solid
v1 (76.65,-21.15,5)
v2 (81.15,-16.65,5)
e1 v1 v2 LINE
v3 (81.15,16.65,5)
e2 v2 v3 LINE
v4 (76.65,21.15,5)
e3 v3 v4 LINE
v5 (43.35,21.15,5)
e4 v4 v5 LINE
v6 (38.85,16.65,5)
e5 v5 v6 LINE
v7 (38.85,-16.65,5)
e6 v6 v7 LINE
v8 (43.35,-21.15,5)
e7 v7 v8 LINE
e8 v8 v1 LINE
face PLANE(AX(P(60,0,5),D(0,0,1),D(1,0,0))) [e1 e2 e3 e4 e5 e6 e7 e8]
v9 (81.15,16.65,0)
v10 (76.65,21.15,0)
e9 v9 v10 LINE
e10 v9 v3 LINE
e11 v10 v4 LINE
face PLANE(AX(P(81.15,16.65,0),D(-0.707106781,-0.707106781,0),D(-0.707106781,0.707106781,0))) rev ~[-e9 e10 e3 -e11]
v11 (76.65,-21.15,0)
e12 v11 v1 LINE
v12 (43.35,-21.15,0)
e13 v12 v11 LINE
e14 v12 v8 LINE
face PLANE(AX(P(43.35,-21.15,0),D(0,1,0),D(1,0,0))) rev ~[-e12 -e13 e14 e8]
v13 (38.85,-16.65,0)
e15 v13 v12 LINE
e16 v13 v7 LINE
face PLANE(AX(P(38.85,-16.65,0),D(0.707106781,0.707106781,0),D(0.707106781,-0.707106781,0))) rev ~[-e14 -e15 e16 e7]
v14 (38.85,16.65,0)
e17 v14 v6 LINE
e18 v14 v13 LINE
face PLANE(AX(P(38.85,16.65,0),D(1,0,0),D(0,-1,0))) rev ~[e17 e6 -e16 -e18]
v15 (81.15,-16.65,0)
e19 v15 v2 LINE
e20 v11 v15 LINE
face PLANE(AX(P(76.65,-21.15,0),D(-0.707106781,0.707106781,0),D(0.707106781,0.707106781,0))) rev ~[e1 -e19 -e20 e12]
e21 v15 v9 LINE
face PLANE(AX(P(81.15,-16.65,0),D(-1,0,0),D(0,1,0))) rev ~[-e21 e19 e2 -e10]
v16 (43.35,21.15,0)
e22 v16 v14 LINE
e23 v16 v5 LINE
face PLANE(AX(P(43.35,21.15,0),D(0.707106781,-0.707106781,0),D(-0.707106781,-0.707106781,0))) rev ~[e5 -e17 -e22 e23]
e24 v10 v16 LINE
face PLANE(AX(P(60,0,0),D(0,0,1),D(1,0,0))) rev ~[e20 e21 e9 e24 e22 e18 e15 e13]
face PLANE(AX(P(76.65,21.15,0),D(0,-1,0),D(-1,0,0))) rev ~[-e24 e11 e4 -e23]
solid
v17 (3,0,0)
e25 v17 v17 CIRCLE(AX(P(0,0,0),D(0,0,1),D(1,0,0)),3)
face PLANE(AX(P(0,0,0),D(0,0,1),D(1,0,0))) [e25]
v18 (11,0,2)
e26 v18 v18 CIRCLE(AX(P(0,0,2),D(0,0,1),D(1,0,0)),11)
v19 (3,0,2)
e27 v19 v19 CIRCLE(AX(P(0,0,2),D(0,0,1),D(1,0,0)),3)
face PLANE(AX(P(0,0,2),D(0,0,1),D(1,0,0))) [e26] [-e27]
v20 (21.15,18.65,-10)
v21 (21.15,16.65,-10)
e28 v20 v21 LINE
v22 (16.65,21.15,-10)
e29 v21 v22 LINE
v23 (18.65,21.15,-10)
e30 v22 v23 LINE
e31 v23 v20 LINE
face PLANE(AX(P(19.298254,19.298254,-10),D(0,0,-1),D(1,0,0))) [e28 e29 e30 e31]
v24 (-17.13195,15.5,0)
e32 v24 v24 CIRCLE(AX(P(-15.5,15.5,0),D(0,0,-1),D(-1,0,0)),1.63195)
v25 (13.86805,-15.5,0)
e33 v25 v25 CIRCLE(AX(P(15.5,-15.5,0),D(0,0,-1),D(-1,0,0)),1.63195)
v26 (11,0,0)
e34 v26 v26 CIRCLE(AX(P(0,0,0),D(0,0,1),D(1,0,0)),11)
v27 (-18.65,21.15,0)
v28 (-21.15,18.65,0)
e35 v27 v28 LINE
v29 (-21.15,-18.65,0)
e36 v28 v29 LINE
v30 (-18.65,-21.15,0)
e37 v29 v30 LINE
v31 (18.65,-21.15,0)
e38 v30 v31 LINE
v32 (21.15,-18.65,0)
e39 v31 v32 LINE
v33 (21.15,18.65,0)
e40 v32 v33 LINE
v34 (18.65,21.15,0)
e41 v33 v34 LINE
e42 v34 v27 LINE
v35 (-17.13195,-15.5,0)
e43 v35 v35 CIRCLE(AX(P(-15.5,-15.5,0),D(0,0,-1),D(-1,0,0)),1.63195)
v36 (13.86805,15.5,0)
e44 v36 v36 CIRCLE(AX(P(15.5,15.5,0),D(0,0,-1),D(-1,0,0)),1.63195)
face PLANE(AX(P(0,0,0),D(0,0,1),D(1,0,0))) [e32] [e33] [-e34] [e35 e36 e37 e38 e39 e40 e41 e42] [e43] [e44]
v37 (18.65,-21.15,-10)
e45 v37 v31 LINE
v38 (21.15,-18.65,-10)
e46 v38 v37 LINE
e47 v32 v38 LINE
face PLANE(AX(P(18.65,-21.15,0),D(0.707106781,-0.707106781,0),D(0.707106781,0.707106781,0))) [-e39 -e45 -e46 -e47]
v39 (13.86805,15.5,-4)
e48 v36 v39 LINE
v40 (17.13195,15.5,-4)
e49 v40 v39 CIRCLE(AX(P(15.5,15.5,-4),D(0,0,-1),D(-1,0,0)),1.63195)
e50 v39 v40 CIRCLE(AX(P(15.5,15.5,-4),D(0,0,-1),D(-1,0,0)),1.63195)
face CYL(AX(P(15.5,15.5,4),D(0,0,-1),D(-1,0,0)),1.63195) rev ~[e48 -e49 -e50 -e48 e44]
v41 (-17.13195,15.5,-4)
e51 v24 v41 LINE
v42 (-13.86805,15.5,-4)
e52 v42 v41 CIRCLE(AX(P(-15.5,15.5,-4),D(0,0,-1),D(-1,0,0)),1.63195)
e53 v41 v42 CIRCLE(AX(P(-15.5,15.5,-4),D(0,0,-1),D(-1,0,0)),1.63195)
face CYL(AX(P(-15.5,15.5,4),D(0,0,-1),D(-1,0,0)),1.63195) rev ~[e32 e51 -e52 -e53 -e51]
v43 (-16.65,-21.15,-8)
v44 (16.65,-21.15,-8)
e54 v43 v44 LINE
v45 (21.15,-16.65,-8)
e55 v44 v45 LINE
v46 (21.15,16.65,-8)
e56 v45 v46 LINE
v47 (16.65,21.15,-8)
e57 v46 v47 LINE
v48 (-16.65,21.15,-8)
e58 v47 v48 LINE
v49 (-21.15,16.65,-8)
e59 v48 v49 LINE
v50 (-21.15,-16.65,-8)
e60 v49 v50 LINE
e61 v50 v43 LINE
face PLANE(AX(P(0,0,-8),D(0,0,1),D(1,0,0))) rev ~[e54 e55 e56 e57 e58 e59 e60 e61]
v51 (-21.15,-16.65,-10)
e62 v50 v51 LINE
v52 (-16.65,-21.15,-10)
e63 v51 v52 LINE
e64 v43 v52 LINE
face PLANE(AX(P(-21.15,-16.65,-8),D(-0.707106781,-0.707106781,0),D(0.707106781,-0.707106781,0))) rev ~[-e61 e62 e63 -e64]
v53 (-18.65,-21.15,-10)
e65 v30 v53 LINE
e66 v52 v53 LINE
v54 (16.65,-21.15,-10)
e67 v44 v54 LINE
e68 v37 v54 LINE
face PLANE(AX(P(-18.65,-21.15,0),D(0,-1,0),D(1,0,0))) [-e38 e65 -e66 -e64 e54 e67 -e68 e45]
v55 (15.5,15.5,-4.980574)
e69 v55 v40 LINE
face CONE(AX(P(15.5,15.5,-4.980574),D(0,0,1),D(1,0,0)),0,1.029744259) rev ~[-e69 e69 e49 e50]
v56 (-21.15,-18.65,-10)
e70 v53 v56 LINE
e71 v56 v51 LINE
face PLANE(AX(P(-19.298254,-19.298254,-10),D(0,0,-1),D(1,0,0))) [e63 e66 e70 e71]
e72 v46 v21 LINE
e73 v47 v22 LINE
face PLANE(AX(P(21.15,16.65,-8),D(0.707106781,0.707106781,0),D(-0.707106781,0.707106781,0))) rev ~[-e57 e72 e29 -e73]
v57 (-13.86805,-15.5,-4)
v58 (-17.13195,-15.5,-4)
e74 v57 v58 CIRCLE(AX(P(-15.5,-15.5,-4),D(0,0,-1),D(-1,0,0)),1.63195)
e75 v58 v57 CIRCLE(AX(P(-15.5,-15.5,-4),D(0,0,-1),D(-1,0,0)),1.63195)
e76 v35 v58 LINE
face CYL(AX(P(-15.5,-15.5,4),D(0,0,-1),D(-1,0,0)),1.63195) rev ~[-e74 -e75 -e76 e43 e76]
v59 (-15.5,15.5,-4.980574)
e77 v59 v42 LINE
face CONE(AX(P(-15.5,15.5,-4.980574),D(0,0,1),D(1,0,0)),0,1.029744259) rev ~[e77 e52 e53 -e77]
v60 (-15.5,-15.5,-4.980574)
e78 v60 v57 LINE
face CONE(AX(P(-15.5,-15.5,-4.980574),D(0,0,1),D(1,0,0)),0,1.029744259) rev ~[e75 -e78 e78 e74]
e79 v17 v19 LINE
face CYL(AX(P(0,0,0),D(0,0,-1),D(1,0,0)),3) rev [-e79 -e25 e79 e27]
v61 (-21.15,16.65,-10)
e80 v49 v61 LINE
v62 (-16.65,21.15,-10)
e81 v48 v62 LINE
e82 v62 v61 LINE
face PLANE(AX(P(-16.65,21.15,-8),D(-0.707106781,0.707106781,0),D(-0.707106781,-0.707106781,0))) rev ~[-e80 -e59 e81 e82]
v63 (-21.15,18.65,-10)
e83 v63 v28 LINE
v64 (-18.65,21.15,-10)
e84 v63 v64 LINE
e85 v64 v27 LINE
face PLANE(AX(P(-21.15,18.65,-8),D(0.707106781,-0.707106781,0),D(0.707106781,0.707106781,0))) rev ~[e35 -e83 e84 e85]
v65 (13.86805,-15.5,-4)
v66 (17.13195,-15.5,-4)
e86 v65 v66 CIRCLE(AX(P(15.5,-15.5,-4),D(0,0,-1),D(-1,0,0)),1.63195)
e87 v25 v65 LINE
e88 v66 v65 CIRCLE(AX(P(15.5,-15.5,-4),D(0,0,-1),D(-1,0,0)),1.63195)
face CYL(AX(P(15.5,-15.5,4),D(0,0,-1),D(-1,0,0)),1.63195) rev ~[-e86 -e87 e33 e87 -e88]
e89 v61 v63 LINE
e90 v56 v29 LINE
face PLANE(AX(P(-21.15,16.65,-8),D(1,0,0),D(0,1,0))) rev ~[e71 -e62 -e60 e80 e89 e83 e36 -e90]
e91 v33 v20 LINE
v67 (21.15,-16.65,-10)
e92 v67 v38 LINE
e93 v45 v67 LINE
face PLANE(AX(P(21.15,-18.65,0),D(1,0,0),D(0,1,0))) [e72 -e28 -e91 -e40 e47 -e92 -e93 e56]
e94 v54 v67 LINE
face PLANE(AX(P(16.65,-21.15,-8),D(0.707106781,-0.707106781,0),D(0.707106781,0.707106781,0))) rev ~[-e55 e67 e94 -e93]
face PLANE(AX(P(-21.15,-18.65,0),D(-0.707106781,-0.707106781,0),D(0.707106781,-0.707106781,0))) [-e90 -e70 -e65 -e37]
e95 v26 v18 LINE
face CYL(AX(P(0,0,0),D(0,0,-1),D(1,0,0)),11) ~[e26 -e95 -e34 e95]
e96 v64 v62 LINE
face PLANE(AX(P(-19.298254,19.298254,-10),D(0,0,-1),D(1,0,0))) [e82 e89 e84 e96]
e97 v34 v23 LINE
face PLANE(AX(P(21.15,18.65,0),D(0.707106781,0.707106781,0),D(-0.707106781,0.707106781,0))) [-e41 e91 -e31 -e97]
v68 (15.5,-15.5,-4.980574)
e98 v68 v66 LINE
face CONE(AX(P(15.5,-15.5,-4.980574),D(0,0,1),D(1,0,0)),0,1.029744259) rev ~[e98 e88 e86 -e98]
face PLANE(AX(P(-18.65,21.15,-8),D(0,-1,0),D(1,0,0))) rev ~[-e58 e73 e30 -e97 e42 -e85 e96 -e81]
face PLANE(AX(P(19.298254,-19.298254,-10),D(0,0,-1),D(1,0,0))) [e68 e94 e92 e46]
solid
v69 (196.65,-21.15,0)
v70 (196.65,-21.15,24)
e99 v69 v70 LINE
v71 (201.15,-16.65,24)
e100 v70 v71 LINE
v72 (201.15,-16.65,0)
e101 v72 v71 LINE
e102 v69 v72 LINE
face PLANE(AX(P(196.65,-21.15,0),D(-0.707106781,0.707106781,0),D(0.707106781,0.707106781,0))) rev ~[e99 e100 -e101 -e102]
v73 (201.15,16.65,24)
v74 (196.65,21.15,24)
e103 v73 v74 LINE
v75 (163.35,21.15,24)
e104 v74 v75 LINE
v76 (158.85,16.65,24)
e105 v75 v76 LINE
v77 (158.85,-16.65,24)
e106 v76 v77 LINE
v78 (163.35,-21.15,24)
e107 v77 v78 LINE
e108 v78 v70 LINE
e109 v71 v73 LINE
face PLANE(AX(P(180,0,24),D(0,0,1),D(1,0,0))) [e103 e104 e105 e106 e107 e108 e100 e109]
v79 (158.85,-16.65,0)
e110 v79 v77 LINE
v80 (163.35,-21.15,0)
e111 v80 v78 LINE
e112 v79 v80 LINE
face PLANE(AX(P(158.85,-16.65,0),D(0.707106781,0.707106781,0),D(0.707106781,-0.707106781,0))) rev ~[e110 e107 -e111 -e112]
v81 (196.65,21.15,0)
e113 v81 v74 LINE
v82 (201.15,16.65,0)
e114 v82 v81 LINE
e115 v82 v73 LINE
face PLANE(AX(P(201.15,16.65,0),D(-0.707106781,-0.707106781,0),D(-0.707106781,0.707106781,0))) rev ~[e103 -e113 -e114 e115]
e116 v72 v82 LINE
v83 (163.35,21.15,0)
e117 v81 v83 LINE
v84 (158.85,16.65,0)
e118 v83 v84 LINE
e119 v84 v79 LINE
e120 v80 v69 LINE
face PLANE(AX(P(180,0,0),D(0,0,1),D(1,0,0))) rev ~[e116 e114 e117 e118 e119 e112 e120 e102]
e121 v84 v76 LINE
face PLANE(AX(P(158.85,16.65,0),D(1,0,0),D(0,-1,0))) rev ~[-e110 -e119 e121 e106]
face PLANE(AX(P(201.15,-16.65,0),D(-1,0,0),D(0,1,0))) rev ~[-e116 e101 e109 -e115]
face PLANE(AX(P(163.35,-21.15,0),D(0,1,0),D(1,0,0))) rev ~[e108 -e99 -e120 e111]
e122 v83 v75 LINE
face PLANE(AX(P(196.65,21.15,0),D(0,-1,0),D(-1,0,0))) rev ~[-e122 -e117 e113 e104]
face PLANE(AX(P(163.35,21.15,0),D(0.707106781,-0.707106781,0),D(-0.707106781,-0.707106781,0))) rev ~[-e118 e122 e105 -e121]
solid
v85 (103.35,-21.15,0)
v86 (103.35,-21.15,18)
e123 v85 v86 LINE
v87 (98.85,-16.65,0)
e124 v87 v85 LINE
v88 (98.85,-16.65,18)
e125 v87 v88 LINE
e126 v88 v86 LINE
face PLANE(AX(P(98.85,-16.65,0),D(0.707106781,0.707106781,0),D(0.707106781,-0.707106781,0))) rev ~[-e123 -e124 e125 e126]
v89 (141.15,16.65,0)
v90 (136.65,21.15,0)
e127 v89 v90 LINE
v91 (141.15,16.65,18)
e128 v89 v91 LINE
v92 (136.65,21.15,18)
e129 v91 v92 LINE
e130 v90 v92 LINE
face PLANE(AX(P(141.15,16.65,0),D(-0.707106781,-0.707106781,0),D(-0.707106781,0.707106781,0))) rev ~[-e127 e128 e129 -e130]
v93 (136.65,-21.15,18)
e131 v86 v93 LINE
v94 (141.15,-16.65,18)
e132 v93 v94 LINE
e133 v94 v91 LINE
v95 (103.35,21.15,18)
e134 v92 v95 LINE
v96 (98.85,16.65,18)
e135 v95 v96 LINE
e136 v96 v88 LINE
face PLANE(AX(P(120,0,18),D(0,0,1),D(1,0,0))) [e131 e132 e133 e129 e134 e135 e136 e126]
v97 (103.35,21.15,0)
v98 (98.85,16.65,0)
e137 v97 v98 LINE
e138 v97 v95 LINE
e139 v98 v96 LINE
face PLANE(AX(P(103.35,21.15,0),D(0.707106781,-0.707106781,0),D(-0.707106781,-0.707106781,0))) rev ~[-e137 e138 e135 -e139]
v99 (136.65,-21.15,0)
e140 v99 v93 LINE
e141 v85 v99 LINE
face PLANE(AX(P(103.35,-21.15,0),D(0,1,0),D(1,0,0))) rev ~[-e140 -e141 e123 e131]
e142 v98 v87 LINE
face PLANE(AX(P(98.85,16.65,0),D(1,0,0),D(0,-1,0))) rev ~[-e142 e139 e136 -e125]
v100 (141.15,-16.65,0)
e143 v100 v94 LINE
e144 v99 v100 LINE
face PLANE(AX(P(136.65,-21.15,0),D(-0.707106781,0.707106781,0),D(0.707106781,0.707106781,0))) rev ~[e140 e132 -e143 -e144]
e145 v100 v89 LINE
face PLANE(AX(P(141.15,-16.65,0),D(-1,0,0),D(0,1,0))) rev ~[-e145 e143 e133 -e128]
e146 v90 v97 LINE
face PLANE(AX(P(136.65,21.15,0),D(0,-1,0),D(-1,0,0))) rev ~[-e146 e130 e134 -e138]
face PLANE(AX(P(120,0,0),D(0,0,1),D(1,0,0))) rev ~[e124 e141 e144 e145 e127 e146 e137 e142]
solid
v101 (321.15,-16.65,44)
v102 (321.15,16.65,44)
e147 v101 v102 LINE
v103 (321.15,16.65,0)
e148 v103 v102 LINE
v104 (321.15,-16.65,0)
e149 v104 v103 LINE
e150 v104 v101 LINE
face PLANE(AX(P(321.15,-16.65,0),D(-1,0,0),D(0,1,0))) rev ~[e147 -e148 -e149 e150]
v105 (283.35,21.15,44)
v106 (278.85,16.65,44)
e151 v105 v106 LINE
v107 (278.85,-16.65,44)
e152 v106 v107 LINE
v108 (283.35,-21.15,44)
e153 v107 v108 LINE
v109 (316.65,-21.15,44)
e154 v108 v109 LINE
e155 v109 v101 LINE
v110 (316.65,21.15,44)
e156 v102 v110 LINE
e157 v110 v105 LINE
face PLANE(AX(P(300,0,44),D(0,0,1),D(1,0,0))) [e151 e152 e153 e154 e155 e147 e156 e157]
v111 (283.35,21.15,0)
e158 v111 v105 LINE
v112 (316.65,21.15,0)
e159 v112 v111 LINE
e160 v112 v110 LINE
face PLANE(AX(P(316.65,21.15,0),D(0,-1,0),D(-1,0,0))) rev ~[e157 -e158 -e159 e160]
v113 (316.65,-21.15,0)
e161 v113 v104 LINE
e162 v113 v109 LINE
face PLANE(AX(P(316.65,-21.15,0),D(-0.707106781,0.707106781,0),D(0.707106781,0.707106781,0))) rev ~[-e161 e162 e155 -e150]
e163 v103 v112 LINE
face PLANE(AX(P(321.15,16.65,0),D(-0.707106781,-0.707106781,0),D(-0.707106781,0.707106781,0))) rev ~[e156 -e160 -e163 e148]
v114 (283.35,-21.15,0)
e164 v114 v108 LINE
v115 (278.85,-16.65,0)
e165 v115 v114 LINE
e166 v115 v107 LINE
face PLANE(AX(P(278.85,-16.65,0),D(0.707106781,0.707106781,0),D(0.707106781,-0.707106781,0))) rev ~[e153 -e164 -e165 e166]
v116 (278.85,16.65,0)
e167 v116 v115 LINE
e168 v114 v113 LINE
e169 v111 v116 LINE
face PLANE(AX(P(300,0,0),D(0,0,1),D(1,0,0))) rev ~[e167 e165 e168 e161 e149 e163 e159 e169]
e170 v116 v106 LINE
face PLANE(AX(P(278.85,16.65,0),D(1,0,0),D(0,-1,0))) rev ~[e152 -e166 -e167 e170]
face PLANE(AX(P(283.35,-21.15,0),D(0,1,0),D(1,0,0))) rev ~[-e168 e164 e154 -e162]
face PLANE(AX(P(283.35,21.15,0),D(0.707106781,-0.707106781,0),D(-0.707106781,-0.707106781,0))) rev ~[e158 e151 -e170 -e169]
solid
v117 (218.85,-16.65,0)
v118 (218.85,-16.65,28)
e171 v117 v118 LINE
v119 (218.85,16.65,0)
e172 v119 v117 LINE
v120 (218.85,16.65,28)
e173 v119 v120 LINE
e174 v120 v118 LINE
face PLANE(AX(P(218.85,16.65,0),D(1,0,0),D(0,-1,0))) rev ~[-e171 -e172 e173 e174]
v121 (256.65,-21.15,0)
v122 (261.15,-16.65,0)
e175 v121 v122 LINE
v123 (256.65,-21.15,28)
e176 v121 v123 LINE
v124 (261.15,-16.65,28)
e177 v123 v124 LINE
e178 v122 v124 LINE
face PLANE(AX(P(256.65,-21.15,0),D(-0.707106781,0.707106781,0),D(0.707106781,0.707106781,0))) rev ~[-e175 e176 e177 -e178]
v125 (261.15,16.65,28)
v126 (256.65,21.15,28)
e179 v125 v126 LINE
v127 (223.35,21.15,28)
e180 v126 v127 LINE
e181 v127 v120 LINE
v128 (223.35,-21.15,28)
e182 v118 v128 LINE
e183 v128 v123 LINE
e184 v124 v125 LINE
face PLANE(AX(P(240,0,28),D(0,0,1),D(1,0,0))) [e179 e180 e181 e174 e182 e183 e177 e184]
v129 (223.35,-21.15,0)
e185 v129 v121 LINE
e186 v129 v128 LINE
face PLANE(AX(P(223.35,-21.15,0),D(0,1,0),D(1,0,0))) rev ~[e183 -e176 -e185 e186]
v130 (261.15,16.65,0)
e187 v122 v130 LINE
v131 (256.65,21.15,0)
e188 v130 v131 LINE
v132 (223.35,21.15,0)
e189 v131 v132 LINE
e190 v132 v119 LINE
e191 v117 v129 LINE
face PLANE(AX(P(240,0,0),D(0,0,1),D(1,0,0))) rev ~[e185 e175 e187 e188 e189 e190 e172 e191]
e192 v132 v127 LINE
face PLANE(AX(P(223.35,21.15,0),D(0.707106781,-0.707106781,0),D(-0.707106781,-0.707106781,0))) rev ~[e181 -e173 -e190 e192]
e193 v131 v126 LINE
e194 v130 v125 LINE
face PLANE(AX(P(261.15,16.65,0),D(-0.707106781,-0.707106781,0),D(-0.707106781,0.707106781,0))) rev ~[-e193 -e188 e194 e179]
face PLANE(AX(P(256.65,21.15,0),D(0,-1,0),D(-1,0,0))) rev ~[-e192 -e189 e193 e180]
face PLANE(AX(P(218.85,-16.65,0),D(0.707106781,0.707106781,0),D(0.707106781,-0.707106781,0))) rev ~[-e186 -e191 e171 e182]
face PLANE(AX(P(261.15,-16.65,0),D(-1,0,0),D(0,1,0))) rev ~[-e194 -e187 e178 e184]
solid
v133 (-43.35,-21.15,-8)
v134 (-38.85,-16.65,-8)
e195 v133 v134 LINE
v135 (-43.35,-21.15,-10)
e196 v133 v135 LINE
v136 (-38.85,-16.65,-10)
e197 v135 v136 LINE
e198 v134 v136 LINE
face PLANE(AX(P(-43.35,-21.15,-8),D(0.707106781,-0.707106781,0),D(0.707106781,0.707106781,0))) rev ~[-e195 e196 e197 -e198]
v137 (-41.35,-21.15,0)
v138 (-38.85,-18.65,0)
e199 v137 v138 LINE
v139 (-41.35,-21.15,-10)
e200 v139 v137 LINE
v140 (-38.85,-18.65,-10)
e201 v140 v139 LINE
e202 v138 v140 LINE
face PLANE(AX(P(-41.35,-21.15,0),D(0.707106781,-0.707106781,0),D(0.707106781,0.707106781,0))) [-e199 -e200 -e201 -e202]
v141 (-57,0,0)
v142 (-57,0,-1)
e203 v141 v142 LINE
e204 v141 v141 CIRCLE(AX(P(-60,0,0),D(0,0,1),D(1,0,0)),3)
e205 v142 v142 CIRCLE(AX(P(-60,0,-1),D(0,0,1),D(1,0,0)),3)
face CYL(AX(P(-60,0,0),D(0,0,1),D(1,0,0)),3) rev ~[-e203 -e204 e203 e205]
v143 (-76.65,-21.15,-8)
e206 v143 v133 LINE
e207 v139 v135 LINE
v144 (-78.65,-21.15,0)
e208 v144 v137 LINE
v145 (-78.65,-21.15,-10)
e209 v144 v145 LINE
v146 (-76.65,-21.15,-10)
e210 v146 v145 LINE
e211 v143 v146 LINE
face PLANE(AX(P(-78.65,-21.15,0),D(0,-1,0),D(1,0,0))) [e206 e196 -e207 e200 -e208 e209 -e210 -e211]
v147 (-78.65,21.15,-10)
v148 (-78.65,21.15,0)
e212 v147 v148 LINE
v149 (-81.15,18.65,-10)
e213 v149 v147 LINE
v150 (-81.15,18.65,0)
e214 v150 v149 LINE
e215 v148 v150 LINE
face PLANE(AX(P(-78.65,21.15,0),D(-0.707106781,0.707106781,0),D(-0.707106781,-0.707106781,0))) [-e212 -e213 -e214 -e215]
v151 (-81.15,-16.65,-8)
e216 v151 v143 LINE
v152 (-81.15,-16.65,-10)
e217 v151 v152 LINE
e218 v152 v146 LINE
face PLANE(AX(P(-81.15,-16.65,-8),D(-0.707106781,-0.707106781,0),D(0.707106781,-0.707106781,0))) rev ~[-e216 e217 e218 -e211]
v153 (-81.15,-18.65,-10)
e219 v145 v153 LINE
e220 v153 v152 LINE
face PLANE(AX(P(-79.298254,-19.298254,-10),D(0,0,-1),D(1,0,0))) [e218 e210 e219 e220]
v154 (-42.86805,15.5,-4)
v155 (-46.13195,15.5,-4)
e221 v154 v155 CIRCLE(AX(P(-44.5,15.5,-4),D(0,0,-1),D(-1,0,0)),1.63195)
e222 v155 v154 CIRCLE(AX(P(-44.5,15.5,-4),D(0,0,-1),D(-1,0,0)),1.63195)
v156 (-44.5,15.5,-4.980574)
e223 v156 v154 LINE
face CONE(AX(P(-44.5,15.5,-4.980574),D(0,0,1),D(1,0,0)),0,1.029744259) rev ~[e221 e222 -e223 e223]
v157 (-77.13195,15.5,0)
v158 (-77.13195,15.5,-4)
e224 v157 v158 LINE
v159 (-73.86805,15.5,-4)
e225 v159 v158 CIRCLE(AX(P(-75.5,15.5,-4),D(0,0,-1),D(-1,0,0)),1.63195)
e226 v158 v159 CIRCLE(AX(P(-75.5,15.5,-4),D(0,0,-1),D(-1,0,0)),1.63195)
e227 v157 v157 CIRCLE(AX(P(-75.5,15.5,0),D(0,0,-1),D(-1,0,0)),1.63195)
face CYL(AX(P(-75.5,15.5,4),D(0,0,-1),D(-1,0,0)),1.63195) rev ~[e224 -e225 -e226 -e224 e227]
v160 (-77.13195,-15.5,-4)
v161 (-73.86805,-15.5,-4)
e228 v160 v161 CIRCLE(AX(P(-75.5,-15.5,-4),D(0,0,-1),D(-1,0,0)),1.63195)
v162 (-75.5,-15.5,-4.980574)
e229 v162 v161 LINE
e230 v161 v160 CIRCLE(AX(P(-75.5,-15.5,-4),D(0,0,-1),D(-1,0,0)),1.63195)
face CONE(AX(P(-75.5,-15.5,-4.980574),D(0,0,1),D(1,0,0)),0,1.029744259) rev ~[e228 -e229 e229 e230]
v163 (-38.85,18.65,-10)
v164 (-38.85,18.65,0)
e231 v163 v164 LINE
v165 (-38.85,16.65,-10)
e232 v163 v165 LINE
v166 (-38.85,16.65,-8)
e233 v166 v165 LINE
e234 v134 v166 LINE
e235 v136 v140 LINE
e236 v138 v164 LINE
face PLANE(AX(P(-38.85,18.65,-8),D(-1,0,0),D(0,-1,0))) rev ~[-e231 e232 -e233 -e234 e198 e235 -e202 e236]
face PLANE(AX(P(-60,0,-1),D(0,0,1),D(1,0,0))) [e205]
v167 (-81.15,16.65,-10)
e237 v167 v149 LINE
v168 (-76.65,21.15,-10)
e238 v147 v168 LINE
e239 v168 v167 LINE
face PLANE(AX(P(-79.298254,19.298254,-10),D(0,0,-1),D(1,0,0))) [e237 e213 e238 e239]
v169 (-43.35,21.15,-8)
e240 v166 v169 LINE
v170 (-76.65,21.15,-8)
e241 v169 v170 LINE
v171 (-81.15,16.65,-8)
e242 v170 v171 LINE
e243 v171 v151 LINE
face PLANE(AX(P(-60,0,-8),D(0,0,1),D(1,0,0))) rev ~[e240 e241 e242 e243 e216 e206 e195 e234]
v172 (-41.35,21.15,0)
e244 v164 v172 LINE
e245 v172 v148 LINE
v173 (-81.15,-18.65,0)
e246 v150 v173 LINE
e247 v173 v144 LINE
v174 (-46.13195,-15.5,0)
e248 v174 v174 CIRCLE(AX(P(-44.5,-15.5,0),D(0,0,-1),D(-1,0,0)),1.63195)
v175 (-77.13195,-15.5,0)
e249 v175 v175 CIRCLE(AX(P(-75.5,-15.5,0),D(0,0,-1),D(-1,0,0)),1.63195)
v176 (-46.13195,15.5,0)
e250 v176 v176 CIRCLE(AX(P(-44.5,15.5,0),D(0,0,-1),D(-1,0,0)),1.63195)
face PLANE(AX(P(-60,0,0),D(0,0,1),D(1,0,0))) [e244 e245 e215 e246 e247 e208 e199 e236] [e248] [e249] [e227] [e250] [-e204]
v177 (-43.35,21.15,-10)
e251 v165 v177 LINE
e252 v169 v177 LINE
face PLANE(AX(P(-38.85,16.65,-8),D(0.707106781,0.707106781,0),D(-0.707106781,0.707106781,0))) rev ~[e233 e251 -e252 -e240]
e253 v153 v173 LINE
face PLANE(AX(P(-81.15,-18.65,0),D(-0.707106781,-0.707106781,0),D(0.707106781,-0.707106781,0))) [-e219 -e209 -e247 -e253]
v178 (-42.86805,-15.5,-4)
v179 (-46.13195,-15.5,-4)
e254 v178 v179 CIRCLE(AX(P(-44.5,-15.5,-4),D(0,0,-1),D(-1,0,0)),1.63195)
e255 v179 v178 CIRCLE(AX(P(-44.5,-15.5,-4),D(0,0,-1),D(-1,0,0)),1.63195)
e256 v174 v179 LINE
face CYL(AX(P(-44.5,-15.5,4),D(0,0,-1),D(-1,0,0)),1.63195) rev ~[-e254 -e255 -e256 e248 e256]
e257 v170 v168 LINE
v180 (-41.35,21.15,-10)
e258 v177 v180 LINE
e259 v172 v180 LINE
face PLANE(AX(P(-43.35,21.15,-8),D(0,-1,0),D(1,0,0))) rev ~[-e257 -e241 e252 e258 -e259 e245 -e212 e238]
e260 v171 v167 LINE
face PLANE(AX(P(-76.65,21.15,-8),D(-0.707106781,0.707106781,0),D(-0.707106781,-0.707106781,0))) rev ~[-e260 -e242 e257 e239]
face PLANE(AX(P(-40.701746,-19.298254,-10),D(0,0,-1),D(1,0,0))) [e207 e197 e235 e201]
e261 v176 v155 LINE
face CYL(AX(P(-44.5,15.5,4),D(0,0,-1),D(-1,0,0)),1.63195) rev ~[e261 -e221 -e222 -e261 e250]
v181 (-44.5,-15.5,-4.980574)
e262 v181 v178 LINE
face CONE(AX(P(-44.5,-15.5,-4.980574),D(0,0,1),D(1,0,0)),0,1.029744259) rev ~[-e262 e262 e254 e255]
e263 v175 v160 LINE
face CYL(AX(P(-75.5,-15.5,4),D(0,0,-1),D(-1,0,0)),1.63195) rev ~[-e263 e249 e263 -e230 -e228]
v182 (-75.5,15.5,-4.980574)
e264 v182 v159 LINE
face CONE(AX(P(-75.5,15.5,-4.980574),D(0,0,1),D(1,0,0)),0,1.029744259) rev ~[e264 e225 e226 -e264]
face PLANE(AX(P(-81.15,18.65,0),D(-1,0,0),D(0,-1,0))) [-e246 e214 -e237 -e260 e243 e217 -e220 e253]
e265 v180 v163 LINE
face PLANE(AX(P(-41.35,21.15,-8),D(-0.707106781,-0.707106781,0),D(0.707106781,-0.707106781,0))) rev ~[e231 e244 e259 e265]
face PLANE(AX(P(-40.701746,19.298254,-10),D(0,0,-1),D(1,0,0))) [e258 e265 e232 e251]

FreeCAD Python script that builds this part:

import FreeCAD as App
import Part
import Sketcher
Q = App.Units.Quantity

doc = App.newDocument("Part")
body = doc.addObject("PartDesign::Body", "Body")

sketch1 = doc.addObject("Sketcher::SketchObject", "Sketch")
body.addObject(sketch1)
sketch1.AttachmentSupport = (doc.XY_Plane, [""])
sketch1.MapMode = "FlatFace"
sketch1.addGeometry([
    Part.LineSegment(App.Vector(-38.9, 18.6, 0), App.Vector(-41.4, 21.1, 0)),
    Part.LineSegment(App.Vector(-41.4, 21.1, 0), App.Vector(-78.7, 21.1, 0)),
    Part.LineSegment(App.Vector(-78.7, 21.1, 0), App.Vector(-81.2, 18.6, 0)),
    Part.LineSegment(App.Vector(-81.2, 18.6, 0), App.Vector(-81.2, -18.6, 0)),
    Part.LineSegment(App.Vector(-81.2, -18.6, 0), App.Vector(-78.7, -21.1, 0)),
    Part.LineSegment(App.Vector(-78.7, -21.1, 0), App.Vector(-41.4, -21.1, 0)),
    Part.LineSegment(App.Vector(-41.4, -21.1, 0), App.Vector(-38.9, -18.6, 0)),
    Part.LineSegment(App.Vector(-38.9, -18.6, 0), App.Vector(-38.9, 18.6, 0)),
], False)
sketch1.addConstraint([
    Sketcher.Constraint("Coincident", 0, 2, 1, 1),
    Sketcher.Constraint("Coincident", 1, 2, 2, 1),
    Sketcher.Constraint("Coincident", 2, 2, 3, 1),
    Sketcher.Constraint("Coincident", 3, 2, 4, 1),
    Sketcher.Constraint("Coincident", 4, 2, 5, 1),
    Sketcher.Constraint("Coincident", 5, 2, 6, 1),
    Sketcher.Constraint("Coincident", 6, 2, 7, 1),
    Sketcher.Constraint("Coincident", 7, 2, 0, 1),
    Sketcher.Constraint("Horizontal", 1),
    Sketcher.Constraint("Vertical", 3),
    Sketcher.Constraint("Horizontal", 5),
    Sketcher.Constraint("Vertical", 7),
    Sketcher.Constraint("Symmetric", 1, 2, 4, 2, -1),
    Sketcher.Constraint("Perpendicular", 0, 2),
    Sketcher.Constraint("Perpendicular", 2, 4),
    Sketcher.Constraint("Perpendicular", 4, 6),
    Sketcher.Constraint("Horizontal", 3, 2, 6, 2),
    Sketcher.Constraint("Horizontal", 2, 2, 7, 2),
    Sketcher.Constraint("Vertical", 0, 2, 5, 2),
    Sketcher.Constraint("Equal", 5, 3),
    Sketcher.Constraint("DistanceX", 1, 2, 1, 1, Q("37.3 mm")),
    Sketcher.Constraint("DistanceX", 2, 2, 1, 2, Q("2.5 mm")),
    Sketcher.Constraint("DistanceX", 0, 2, -1, 1, Q("41.35 mm")),
])
pad1 = doc.addObject("PartDesign::Pad", "Pad")
body.addObject(pad1)
pad1.Profile = sketch1
pad1.Length = 8
pad1.Reversed = True

sketch2 = doc.addObject("Sketcher::SketchObject", "Sketch001")
body.addObject(sketch2)
sketch2.AttachmentSupport = (doc.XY_Plane, [""])
sketch2.MapMode = "FlatFace"
sketch2.addGeometry(Part.Circle(App.Vector(-60, 0, 0), App.Vector(0, 0, 1), 3), False)
sketch2.addConstraint([
    Sketcher.Constraint("PointOnObject", 0, 3, -1),
    Sketcher.Constraint("Diameter", 0, Q("6 mm")),
    Sketcher.Constraint("DistanceX", 0, 3, -1, 1, Q("60 mm")),
])
pocket1 = doc.addObject("PartDesign::Pocket", "Pocket")
body.addObject(pocket1)
pocket1.Profile = sketch2
pocket1.Length = 1

sketch3 = doc.addObject("Sketcher::SketchObject", "Sketch002")
body.addObject(sketch3)
sketch3.AttachmentSupport = (doc.XY_Plane, [""])
sketch3.MapMode = "FlatFace"
sketch3.AttachmentOffset = App.Placement(App.Vector(0, 0, -8), App.Rotation())
sketch3.addGeometry([
    Part.LineSegment(App.Vector(-38.9, 16.6, 0), App.Vector(-43.4, 21.1, 0)),
    Part.LineSegment(App.Vector(-43.4, 21.1, 0), App.Vector(-41.4, 21.1, 0)),
    Part.LineSegment(App.Vector(-41.4, 21.1, 0), App.Vector(-38.9, 18.6, 0)),
    Part.LineSegment(App.Vector(-38.9, 18.6, 0), App.Vector(-38.9, 16.6, 0)),
    Part.LineSegment(App.Vector(-78.7, 21.1, 0), App.Vector(-76.7, 21.1, 0)),
    Part.LineSegment(App.Vector(-76.7, 21.1, 0), App.Vector(-81.2, 16.6, 0)),
    Part.LineSegment(App.Vector(-81.2, 16.6, 0), App.Vector(-81.2, 18.6, 0)),
    Part.LineSegment(App.Vector(-81.2, 18.6, 0), App.Vector(-78.7, 21.1, 0)),
    Part.LineSegment(App.Vector(-81.2, -16.6, 0), App.Vector(-76.7, -21.1, 0)),
    Part.LineSegment(App.Vector(-76.7, -21.1, 0), App.Vector(-78.7, -21.1, 0)),
    Part.LineSegment(App.Vector(-78.7, -21.1, 0), App.Vector(-81.2, -18.6, 0)),
    Part.LineSegment(App.Vector(-81.2, -18.6, 0), App.Vector(-81.2, -16.6, 0)),
    Part.LineSegment(App.Vector(-38.9, -16.6, 0), App.Vector(-38.9, -18.6, 0)),
    Part.LineSegment(App.Vector(-38.9, -18.6, 0), App.Vector(-41.4, -21.1, 0)),
    Part.LineSegment(App.Vector(-41.4, -21.1, 0), App.Vector(-43.4, -21.1, 0)),
    Part.LineSegment(App.Vector(-43.4, -21.1, 0), App.Vector(-38.9, -16.6, 0)),
], False)
sketch3.addConstraint([
    Sketcher.Constraint("Coincident", 0, 2, 1, 1),
    Sketcher.Constraint("Coincident", 1, 2, 2, 1),
    Sketcher.Constraint("Coincident", 2, 2, 3, 1),
    Sketcher.Constraint("Coincident", 3, 2, 0, 1),
    Sketcher.Constraint("Coincident", 4, 2, 5, 1),
    Sketcher.Constraint("Coincident", 5, 2, 6, 1),
    Sketcher.Constraint("Coincident", 6, 2, 7, 1),
    Sketcher.Constraint("Coincident", 7, 2, 4, 1),
    Sketcher.Constraint("Coincident", 8, 2, 9, 1),
    Sketcher.Constraint("Coincident", 9, 2, 10, 1),
    Sketcher.Constraint("Coincident", 10, 2, 11, 1),
    Sketcher.Constraint("Coincident", 11, 2, 8, 1),
    Sketcher.Constraint("Coincident", 12, 2, 13, 1),
    Sketcher.Constraint("Coincident", 13, 2, 14, 1),
    Sketcher.Constraint("Coincident", 14, 2, 15, 1),
    Sketcher.Constraint("Coincident", 15, 2, 12, 1),
    Sketcher.Constraint("Horizontal", 1),
    Sketcher.Constraint("Vertical", 3),
    Sketcher.Constraint("Horizontal", 4),
    Sketcher.Constraint("Vertical", 6),
    Sketcher.Constraint("Horizontal", 9),
    Sketcher.Constraint("Vertical", 11),
    Sketcher.Constraint("Vertical", 12),
    Sketcher.Constraint("Horizontal", 14),
    Sketcher.Constraint("Symmetric", 4, 2, 8, 2, -1),
    Sketcher.Constraint("Symmetric", 6, 2, 10, 2, -1),
    Sketcher.Constraint("Symmetric", 2, 2, 12, 2, -1),
    Sketcher.Constraint("Symmetric", 1, 2, 13, 2, -1),
    Sketcher.Constraint("Parallel", 0, 2),
    Sketcher.Constraint("Perpendicular", 2, 5),
    Sketcher.Constraint("Parallel", 5, 7),
    Sketcher.Constraint("Perpendicular", 7, 8),
    Sketcher.Constraint("Parallel", 8, 10),
    Sketcher.Constraint("Perpendicular", 10, 13),
    Sketcher.Constraint("Parallel", 13, 15),
    Sketcher.Constraint("Horizontal", 1, 2, 4, 2),
    Sketcher.Constraint("Horizontal", 3, 2, 5, 2),
    Sketcher.Constraint("Horizontal", 2, 2, 6, 2),
    Sketcher.Constraint("Horizontal", 11, 2, 15, 2),
    Sketcher.Constraint("DistanceX", 1, 1, 1, 2, Q("2 mm")),
    Sketcher.Constraint("DistanceX", 1, 2, 2, 2, Q("2.5 mm")),
    Sketcher.Constraint("DistanceX", 4, 2, 0, 2, Q("33.3 mm")),
    Sketcher.Constraint("DistanceY", 8, 2, 5, 2, Q("37.8 mm")),
    Sketcher.Constraint("DistanceX", 0, 2, -1, 1, Q("43.35 mm")),
])
pad2 = doc.addObject("PartDesign::Pad", "Pad001")
body.addObject(pad2)
pad2.Profile = sketch3
pad2.Length = 2
pad2.Reversed = True

sketch4 = doc.addObject("Sketcher::SketchObject", "Sketch003")
body.addObject(sketch4)
sketch4.AttachmentSupport = (doc.XY_Plane, [""])
sketch4.MapMode = "FlatFace"
sketch4.addGeometry([
    Part.Circle(App.Vector(-15.5, -15.5, 0), App.Vector(0, 0, 1), 1.6),
    Part.Circle(App.Vector(15.5, -15.5, 0), App.Vector(0, 0, 1), 1.6),
    Part.Circle(App.Vector(15.5, 15.5, 0), App.Vector(0, 0, 1), 1.6),
    Part.Circle(App.Vector(-15.5, 15.5, 0), App.Vector(0, 0, 1), 1.6),
    Part.Circle(App.Vector(-44.5, -15.5, 0), App.Vector(0, 0, 1), 1.6),
    Part.Circle(App.Vector(-44.5, 15.5, 0), App.Vector(0, 0, 1), 1.6),
    Part.Circle(App.Vector(-75.5, 15.5, 0), App.Vector(0, 0, 1), 1.6),
    Part.Circle(App.Vector(-75.5, -15.5, 0), App.Vector(0, 0, 1), 1.6),
], False)
sketch4.addConstraint([
    Sketcher.Constraint("Equal", 0, 1),
    Sketcher.Constraint("Equal", 1, 2),
    Sketcher.Constraint("Equal", 2, 3),
    Sketcher.Constraint("Equal", 3, 4),
    Sketcher.Constraint("Equal", 4, 5),
    Sketcher.Constraint("Equal", 5, 6),
    Sketcher.Constraint("Equal", 6, 7),
    Sketcher.Constraint("Symmetric", 0, 3, 2, 3, -1, 1),
    Sketcher.Constraint("Symmetric", 1, 3, 3, 3, -1, 1),
    Sketcher.Constraint("Symmetric", 0, 3, 1, 3, -2),
    Sketcher.Constraint("Symmetric", 4, 3, 5, 3, -1),
    Sketcher.Constraint("Symmetric", 6, 3, 7, 3, -1),
    Sketcher.Constraint("Horizontal", 1, 3, 4, 3),
    Sketcher.Constraint("Horizontal", 5, 3, 6, 3),
    Sketcher.Constraint("DistanceX", 0, 3, 1, 3, Q("31 mm")),
    Sketcher.Constraint("DistanceY", 1, 3, 2, 3, Q("31 mm")),
    Sketcher.Constraint("DistanceX", 4, 3, 0, 3, Q("29 mm")),
    Sketcher.Constraint("DistanceX", 6, 3, 5, 3, Q("31 mm")),
    Sketcher.Constraint("Diameter", 0, Q("3.2639 mm")),
])
doc.recompute()
hole = doc.addObject("PartDesign::Hole", "Hole")
body.addObject(hole)
hole.Profile = sketch4
hole.ThreadType = "None"
hole.Diameter = 3.2639
hole.DepthType = "Dimension"
hole.Depth = 4
hole.DrillPoint = "Angled"
hole.DrillPointAngle = 118
body2 = doc.addObject("PartDesign::Body", "Body001")

sketch5 = doc.addObject("Sketcher::SketchObject", "Sketch004")
body2.addObject(sketch5)
sketch5.AttachmentSupport = (doc.getObject("XY_Plane001"), [""])
sketch5.MapMode = "FlatFace"
sketch5.addGeometry([
    Part.LineSegment(App.Vector(21.1, 18.6, 0), App.Vector(18.6, 21.1, 0)),
    Part.LineSegment(App.Vector(18.6, 21.1, 0), App.Vector(-18.6, 21.1, 0)),
    Part.LineSegment(App.Vector(-18.6, 21.1, 0), App.Vector(-21.1, 18.6, 0)),
    Part.LineSegment(App.Vector(-21.1, 18.6, 0), App.Vector(-21.1, -18.6, 0)),
    Part.LineSegment(App.Vector(-21.1, -18.6, 0), App.Vector(-18.6, -21.1, 0)),
    Part.LineSegment(App.Vector(-18.6, -21.1, 0), App.Vector(18.6, -21.1, 0)),
    Part.LineSegment(App.Vector(18.6, -21.1, 0), App.Vector(21.1, -18.6, 0)),
    Part.LineSegment(App.Vector(21.1, -18.6, 0), App.Vector(21.1, 18.6, 0)),
], False)
sketch5.addConstraint([
    Sketcher.Constraint("Coincident", 0, 2, 1, 1),
    Sketcher.Constraint("Coincident", 1, 2, 2, 1),
    Sketcher.Constraint("Coincident", 2, 2, 3, 1),
    Sketcher.Constraint("Coincident", 3, 2, 4, 1),
    Sketcher.Constraint("Coincident", 4, 2, 5, 1),
    Sketcher.Constraint("Coincident", 5, 2, 6, 1),
    Sketcher.Constraint("Coincident", 6, 2, 7, 1),
    Sketcher.Constraint("Coincident", 7, 2, 0, 1),
    Sketcher.Constraint("Horizontal", 1),
    Sketcher.Constraint("Vertical", 3),
    Sketcher.Constraint("Horizontal", 5),
    Sketcher.Constraint("Vertical", 7),
    Sketcher.Constraint("Symmetric", 0, 2, 4, 2, -1, 1),
    Sketcher.Constraint("Symmetric", 2, 2, 6, 2, -1, 1),
    Sketcher.Constraint("Perpendicular", 0, 2),
    Sketcher.Constraint("Perpendicular", 2, 4),
    Sketcher.Constraint("Perpendicular", 4, 6),
    Sketcher.Constraint("Horizontal", 3, 2, 6, 2),
    Sketcher.Constraint("Vertical", 1, 2, 4, 2),
    Sketcher.Constraint("Equal", 5, 3),
    Sketcher.Constraint("DistanceX", 1, 2, 1, 1, Q("37.3 mm")),
    Sketcher.Constraint("DistanceX", 2, 2, 1, 2, Q("2.5 mm")),
])
pad3 = doc.addObject("PartDesign::Pad", "Pad002")
body2.addObject(pad3)
pad3.Profile = sketch5
pad3.Length = 8
pad3.Reversed = True

sketch6 = doc.addObject("Sketcher::SketchObject", "Sketch005")
body2.addObject(sketch6)
sketch6.AttachmentSupport = (doc.getObject("XY_Plane001"), [""])
sketch6.MapMode = "FlatFace"
sketch6.addGeometry([
    Part.Circle(App.Vector(0, 0, 0), App.Vector(0, 0, 1), 11),
    Part.Circle(App.Vector(0, 0, 0), App.Vector(0, 0, 1), 3),
], False)
sketch6.addConstraint([
    Sketcher.Constraint("Coincident", 0, 3, -1, 1),
    Sketcher.Constraint("Coincident", 1, 3, -1, 1),
    Sketcher.Constraint("Diameter", 0, Q("22 mm")),
    Sketcher.Constraint("Diameter", 1, Q("6 mm")),
])
pad4 = doc.addObject("PartDesign::Pad", "Pad003")
body2.addObject(pad4)
pad4.Profile = sketch6
pad4.Length = 2

sketch7 = doc.addObject("Sketcher::SketchObject", "Sketch006")
body2.addObject(sketch7)
sketch7.AttachmentSupport = (doc.getObject("XY_Plane001"), [""])
sketch7.MapMode = "FlatFace"
sketch7.AttachmentOffset = App.Placement(App.Vector(0, 0, -8), App.Rotation())
sketch7.addGeometry([
    Part.LineSegment(App.Vector(-18.6, 21.1, 0), App.Vector(-16.6, 21.1, 0)),
    Part.LineSegment(App.Vector(-16.6, 21.1, 0), App.Vector(-21.1, 16.6, 0)),
    Part.LineSegment(App.Vector(-21.1, 16.6, 0), App.Vector(-21.1, 18.6, 0)),
    Part.LineSegment(App.Vector(-21.1, 18.6, 0), App.Vector(-18.6, 21.1, 0)),
    Part.LineSegment(App.Vector(21.1, 16.6, 0), App.Vector(16.6, 21.1, 0)),
    Part.LineSegment(App.Vector(16.6, 21.1, 0), App.Vector(18.6, 21.1, 0)),
    Part.LineSegment(App.Vector(18.6, 21.1, 0), App.Vector(21.1, 18.6, 0)),
    Part.LineSegment(App.Vector(21.1, 18.6, 0), App.Vector(21.1, 16.6, 0)),
    Part.LineSegment(App.Vector(16.6, -21.1, 0), App.Vector(21.1, -16.6, 0)),
    Part.LineSegment(App.Vector(21.1, -16.6, 0), App.Vector(21.1, -18.6, 0)),
    Part.LineSegment(App.Vector(21.1, -18.6, 0), App.Vector(18.6, -21.1, 0)),
    Part.LineSegment(App.Vector(18.6, -21.1, 0), App.Vector(16.6, -21.1, 0)),
    Part.LineSegment(App.Vector(-21.1, -18.6, 0), App.Vector(-21.1, -16.6, 0)),
    Part.LineSegment(App.Vector(-21.1, -16.6, 0), App.Vector(-16.6, -21.1, 0)),
    Part.LineSegment(App.Vector(-16.6, -21.1, 0), App.Vector(-18.6, -21.1, 0)),
    Part.LineSegment(App.Vector(-18.6, -21.1, 0), App.Vector(-21.1, -18.6, 0)),
], False)
sketch7.addConstraint([
    Sketcher.Constraint("Coincident", 0, 2, 1, 1),
    Sketcher.Constraint("Coincident", 1, 2, 2, 1),
    Sketcher.Constraint("Coincident", 2, 2, 3, 1),
    Sketcher.Constraint("Coincident", 3, 2, 0, 1),
    Sketcher.Constraint("Coincident", 4, 2, 5, 1),
    Sketcher.Constraint("Coincident", 5, 2, 6, 1),
    Sketcher.Constraint("Coincident", 6, 2, 7, 1),
    Sketcher.Constraint("Coincident", 7, 2, 4, 1),
    Sketcher.Constraint("Coincident", 8, 2, 9, 1),
    Sketcher.Constraint("Coincident", 9, 2, 10, 1),
    Sketcher.Constraint("Coincident", 10, 2, 11, 1),
    Sketcher.Constraint("Coincident", 11, 2, 8, 1),
    Sketcher.Constraint("Coincident", 12, 2, 13, 1),
    Sketcher.Constraint("Coincident", 13, 2, 14, 1),
    Sketcher.Constraint("Coincident", 14, 2, 15, 1),
    Sketcher.Constraint("Coincident", 15, 2, 12, 1),
    Sketcher.Constraint("Horizontal", 0),
    Sketcher.Constraint("Vertical", 2),
    Sketcher.Constraint("Horizontal", 5),
    Sketcher.Constraint("Vertical", 7),
    Sketcher.Constraint("Vertical", 9),
    Sketcher.Constraint("Horizontal", 11),
    Sketcher.Constraint("Vertical", 12),
    Sketcher.Constraint("Horizontal", 14),
    Sketcher.Constraint("Symmetric", 1, 2, 8, 2, -1, 1),
    Sketcher.Constraint("Symmetric", 3, 2, 10, 2, -1, 1),
    Sketcher.Constraint("Symmetric", 7, 2, 12, 2, -1, 1),
    Sketcher.Constraint("Symmetric", 4, 2, 13, 2, -1, 1),
    Sketcher.Constraint("Symmetric", 0, 2, 4, 2, -2),
    Sketcher.Constraint("Symmetric", 2, 2, 6, 2, -2),
    Sketcher.Constraint("Parallel", 1, 3),
    Sketcher.Constraint("Perpendicular", 3, 4),
    Sketcher.Constraint("Parallel", 4, 6),
    Sketcher.Constraint("Perpendicular", 6, 8),
    Sketcher.Constraint("Parallel", 8, 10),
    Sketcher.Constraint("Parallel", 13, 15),
    Sketcher.Constraint("Horizontal", 1, 2, 7, 2),
    Sketcher.Constraint("Horizontal", 9, 2, 15, 2),
    Sketcher.Constraint("DistanceX", 0, 1, 0, 2, Q("2 mm")),
    Sketcher.Constraint("DistanceX", 1, 2, 0, 2, Q("4.5 mm")),
    Sketcher.Constraint("DistanceX", 0, 2, 4, 2, Q("33.3 mm")),
    Sketcher.Constraint("DistanceY", 8, 2, 7, 2, Q("33.3 mm")),
])
pad5 = doc.addObject("PartDesign::Pad", "Pad004")
body2.addObject(pad5)
pad5.Profile = sketch7
pad5.Length = 2
pad5.Reversed = True

sketch8 = doc.addObject("Sketcher::SketchObject", "Sketch007")
body2.addObject(sketch8)
sketch8.AttachmentSupport = (doc.getObject("XY_Plane001"), [""])
sketch8.MapMode = "FlatFace"
sketch8.addGeometry([
    Part.Circle(App.Vector(-15.5, -15.5, 0), App.Vector(0, 0, 1), 1.6),
    Part.Circle(App.Vector(15.5, -15.5, 0), App.Vector(0, 0, 1), 1.6),
    Part.Circle(App.Vector(15.5, 15.5, 0), App.Vector(0, 0, 1), 1.6),
    Part.Circle(App.Vector(-15.5, 15.5, 0), App.Vector(0, 0, 1), 1.6),
    Part.Circle(App.Vector(-44.5, -15.5, 0), App.Vector(0, 0, 1), 1.6),
    Part.Circle(App.Vector(-44.5, 15.5, 0), App.Vector(0, 0, 1), 1.6),
    Part.Circle(App.Vector(-75.5, 15.5, 0), App.Vector(0, 0, 1), 1.6),
    Part.Circle(App.Vector(-75.5, -15.5, 0), App.Vector(0, 0, 1), 1.6),
], False)
sketch8.addConstraint([
    Sketcher.Constraint("Equal", 0, 1),
    Sketcher.Constraint("Equal", 1, 2),
    Sketcher.Constraint("Equal", 2, 3),
    Sketcher.Constraint("Equal", 3, 4),
    Sketcher.Constraint("Equal", 4, 5),
    Sketcher.Constraint("Equal", 5, 6),
    Sketcher.Constraint("Equal", 6, 7),
    Sketcher.Constraint("Symmetric", 0, 3, 2, 3, -1, 1),
    Sketcher.Constraint("Symmetric", 1, 3, 3, 3, -1, 1),
    Sketcher.Constraint("Symmetric", 0, 3, 1, 3, -2),
    Sketcher.Constraint("Symmetric", 4, 3, 5, 3, -1),
    Sketcher.Constraint("Symmetric", 6, 3, 7, 3, -1),
    Sketcher.Constraint("Horizontal", 1, 3, 4, 3),
    Sketcher.Constraint("Horizontal", 5, 3, 6, 3),
    Sketcher.Constraint("DistanceX", 0, 3, 1, 3, Q("31 mm")),
    Sketcher.Constraint("DistanceY", 1, 3, 2, 3, Q("31 mm")),
    Sketcher.Constraint("DistanceX", 4, 3, 0, 3, Q("29 mm")),
    Sketcher.Constraint("DistanceX", 6, 3, 5, 3, Q("31 mm")),
    Sketcher.Constraint("Diameter", 0, Q("3.2639 mm")),
])
doc.recompute()
hole2 = doc.addObject("PartDesign::Hole", "Hole001")
body2.addObject(hole2)
hole2.Profile = sketch8
hole2.ThreadType = "None"
hole2.Diameter = 3.2639
hole2.DepthType = "Dimension"
hole2.Depth = 4
hole2.DrillPoint = "Angled"
hole2.DrillPointAngle = 118
body3 = doc.addObject("PartDesign::Body", "Body002")

sketch9 = doc.addObject("Sketcher::SketchObject", "Sketch008")
body3.addObject(sketch9)
sketch9.AttachmentSupport = (doc.getObject("XY_Plane002"), [""])
sketch9.MapMode = "FlatFace"
sketch9.addGeometry([
    Part.LineSegment(App.Vector(43, -21, 0), App.Vector(77, -21, 0)),
    Part.LineSegment(App.Vector(77, -21, 0), App.Vector(81, -17, 0)),
    Part.LineSegment(App.Vector(81, -17, 0), App.Vector(81, 17, 0)),
    Part.LineSegment(App.Vector(81, 17, 0), App.Vector(77, 21, 0)),
    Part.LineSegment(App.Vector(77, 21, 0), App.Vector(43, 21, 0)),
    Part.LineSegment(App.Vector(43, 21, 0), App.Vector(39, 17, 0)),
    Part.LineSegment(App.Vector(39, 17, 0), App.Vector(39, -17, 0)),
    Part.LineSegment(App.Vector(39, -17, 0), App.Vector(43, -21, 0)),
], False)
sketch9.addConstraint([
    Sketcher.Constraint("Coincident", 0, 2, 1, 1),
    Sketcher.Constraint("Coincident", 1, 2, 2, 1),
    Sketcher.Constraint("Coincident", 2, 2, 3, 1),
    Sketcher.Constraint("Coincident", 3, 2, 4, 1),
    Sketcher.Constraint("Coincident", 4, 2, 5, 1),
    Sketcher.Constraint("Coincident", 5, 2, 6, 1),
    Sketcher.Constraint("Coincident", 6, 2, 7, 1),
    Sketcher.Constraint("Coincident", 7, 2, 0, 1),
    Sketcher.Constraint("Horizontal", 0),
    Sketcher.Constraint("Vertical", 2),
    Sketcher.Constraint("Horizontal", 4),
    Sketcher.Constraint("Vertical", 6),
    Sketcher.Constraint("Symmetric", 0, 2, 3, 2, -1),
    Sketcher.Constraint("Perpendicular", 1, 3),
    Sketcher.Constraint("Perpendicular", 3, 5),
    Sketcher.Constraint("Perpendicular", 5, 7),
    Sketcher.Constraint("Horizontal", 2, 2, 5, 2),
    Sketcher.Constraint("Horizontal", 1, 2, 6, 2),
    Sketcher.Constraint("Vertical", 4, 2, 7, 2),
    Sketcher.Constraint("Equal", 4, 2),
    Sketcher.Constraint("DistanceX", 0, 1, 0, 2, Q("33.3 mm")),
    Sketcher.Constraint("DistanceX", 0, 2, 1, 2, Q("4.5 mm")),
    Sketcher.Constraint("DistanceX", -1, 1, 0, 2, Q("76.65 mm")),
])
pad6 = doc.addObject("PartDesign::Pad", "Pad005")
body3.addObject(pad6)
pad6.Profile = sketch9
pad6.Length = 5
body4 = doc.addObject("PartDesign::Body", "Body003")

sketch10 = doc.addObject("Sketcher::SketchObject", "Sketch009")
body4.addObject(sketch10)
sketch10.AttachmentSupport = (doc.getObject("XY_Plane003"), [""])
sketch10.MapMode = "FlatFace"
sketch10.addGeometry([
    Part.LineSegment(App.Vector(103, -21, 0), App.Vector(137, -21, 0)),
    Part.LineSegment(App.Vector(137, -21, 0), App.Vector(141, -17, 0)),
    Part.LineSegment(App.Vector(141, -17, 0), App.Vector(141, 17, 0)),
    Part.LineSegment(App.Vector(141, 17, 0), App.Vector(137, 21, 0)),
    Part.LineSegment(App.Vector(137, 21, 0), App.Vector(103, 21, 0)),
    Part.LineSegment(App.Vector(103, 21, 0), App.Vector(99, 17, 0)),
    Part.LineSegment(App.Vector(99, 17, 0), App.Vector(99, -17, 0)),
    Part.LineSegment(App.Vector(99, -17, 0), App.Vector(103, -21, 0)),
], False)
sketch10.addConstraint([
    Sketcher.Constraint("Coincident", 0, 2, 1, 1),
    Sketcher.Constraint("Coincident", 1, 2, 2, 1),
    Sketcher.Constraint("Coincident", 2, 2, 3, 1),
    Sketcher.Constraint("Coincident", 3, 2, 4, 1),
    Sketcher.Constraint("Coincident", 4, 2, 5, 1),
    Sketcher.Constraint("Coincident", 5, 2, 6, 1),
    Sketcher.Constraint("Coincident", 6, 2, 7, 1),
    Sketcher.Constraint("Coincident", 7, 2, 0, 1),
    Sketcher.Constraint("Horizontal", 0),
    Sketcher.Constraint("Vertical", 2),
    Sketcher.Constraint("Horizontal", 4),
    Sketcher.Constraint("Vertical", 6),
    Sketcher.Constraint("Symmetric", 0, 2, 3, 2, -1),
    Sketcher.Constraint("Perpendicular", 1, 3),
    Sketcher.Constraint("Perpendicular", 3, 5),
    Sketcher.Constraint("Perpendicular", 5, 7),
    Sketcher.Constraint("Horizontal", 2, 2, 5, 2),
    Sketcher.Constraint("Horizontal", 1, 2, 6, 2),
    Sketcher.Constraint("Vertical", 4, 2, 7, 2),
    Sketcher.Constraint("Equal", 4, 2),
    Sketcher.Constraint("DistanceX", 0, 1, 0, 2, Q("33.3 mm")),
    Sketcher.Constraint("DistanceX", 0, 2, 1, 2, Q("4.5 mm")),
    Sketcher.Constraint("DistanceX", -1, 1, 0, 2, Q("136.65 mm")),
])
pad7 = doc.addObject("PartDesign::Pad", "Pad006")
body4.addObject(pad7)
pad7.Profile = sketch10
pad7.Length = 18
body5 = doc.addObject("PartDesign::Body", "Body004")

sketch11 = doc.addObject("Sketcher::SketchObject", "Sketch010")
body5.addObject(sketch11)
sketch11.AttachmentSupport = (doc.getObject("XY_Plane004"), [""])
sketch11.MapMode = "FlatFace"
sketch11.addGeometry([
    Part.LineSegment(App.Vector(163, -21, 0), App.Vector(197, -21, 0)),
    Part.LineSegment(App.Vector(197, -21, 0), App.Vector(201, -17, 0)),
    Part.LineSegment(App.Vector(201, -17, 0), App.Vector(201, 17, 0)),
    Part.LineSegment(App.Vector(201, 17, 0), App.Vector(197, 21, 0)),
    Part.LineSegment(App.Vector(197, 21, 0), App.Vector(163, 21, 0)),
    Part.LineSegment(App.Vector(163, 21, 0), App.Vector(159, 17, 0)),
    Part.LineSegment(App.Vector(159, 17, 0), App.Vector(159, -17, 0)),
    Part.LineSegment(App.Vector(159, -17, 0), App.Vector(163, -21, 0)),
], False)
sketch11.addConstraint([
    Sketcher.Constraint("Coincident", 0, 2, 1, 1),
    Sketcher.Constraint("Coincident", 1, 2, 2, 1),
    Sketcher.Constraint("Coincident", 2, 2, 3, 1),
    Sketcher.Constraint("Coincident", 3, 2, 4, 1),
    Sketcher.Constraint("Coincident", 4, 2, 5, 1),
    Sketcher.Constraint("Coincident", 5, 2, 6, 1),
    Sketcher.Constraint("Coincident", 6, 2, 7, 1),
    Sketcher.Constraint("Coincident", 7, 2, 0, 1),
    Sketcher.Constraint("Horizontal", 0),
    Sketcher.Constraint("Vertical", 2),
    Sketcher.Constraint("Horizontal", 4),
    Sketcher.Constraint("Vertical", 6),
    Sketcher.Constraint("Symmetric", 0, 2, 3, 2, -1),
    Sketcher.Constraint("Perpendicular", 1, 3),
    Sketcher.Constraint("Perpendicular", 3, 5),
    Sketcher.Constraint("Perpendicular", 5, 7),
    Sketcher.Constraint("Horizontal", 2, 2, 5, 2),
    Sketcher.Constraint("Horizontal", 1, 2, 6, 2),
    Sketcher.Constraint("Vertical", 4, 2, 7, 2),
    Sketcher.Constraint("Equal", 4, 2),
    Sketcher.Constraint("DistanceX", 0, 1, 0, 2, Q("33.3 mm")),
    Sketcher.Constraint("DistanceX", 0, 2, 1, 2, Q("4.5 mm")),
    Sketcher.Constraint("DistanceX", -1, 1, 0, 2, Q("196.65 mm")),
])
pad8 = doc.addObject("PartDesign::Pad", "Pad007")
body5.addObject(pad8)
pad8.Profile = sketch11
pad8.Length = 24
body6 = doc.addObject("PartDesign::Body", "Body005")

sketch12 = doc.addObject("Sketcher::SketchObject", "Sketch011")
body6.addObject(sketch12)
sketch12.AttachmentSupport = (doc.getObject("XY_Plane005"), [""])
sketch12.MapMode = "FlatFace"
sketch12.addGeometry([
    Part.LineSegment(App.Vector(223, -21, 0), App.Vector(257, -21, 0)),
    Part.LineSegment(App.Vector(257, -21, 0), App.Vector(261, -17, 0)),
    Part.LineSegment(App.Vector(261, -17, 0), App.Vector(261, 17, 0)),
    Part.LineSegment(App.Vector(261, 17, 0), App.Vector(257, 21, 0)),
    Part.LineSegment(App.Vector(257, 21, 0), App.Vector(223, 21, 0)),
    Part.LineSegment(App.Vector(223, 21, 0), App.Vector(219, 17, 0)),
    Part.LineSegment(App.Vector(219, 17, 0), App.Vector(219, -17, 0)),
    Part.LineSegment(App.Vector(219, -17, 0), App.Vector(223, -21, 0)),
], False)
sketch12.addConstraint([
    Sketcher.Constraint("Coincident", 0, 2, 1, 1),
    Sketcher.Constraint("Coincident", 1, 2, 2, 1),
    Sketcher.Constraint("Coincident", 2, 2, 3, 1),
    Sketcher.Constraint("Coincident", 3, 2, 4, 1),
    Sketcher.Constraint("Coincident", 4, 2, 5, 1),
    Sketcher.Constraint("Coincident", 5, 2, 6, 1),
    Sketcher.Constraint("Coincident", 6, 2, 7, 1),
    Sketcher.Constraint("Coincident", 7, 2, 0, 1),
    Sketcher.Constraint("Horizontal", 0),
    Sketcher.Constraint("Vertical", 2),
    Sketcher.Constraint("Horizontal", 4),
    Sketcher.Constraint("Vertical", 6),
    Sketcher.Constraint("Symmetric", 0, 2, 3, 2, -1),
    Sketcher.Constraint("Perpendicular", 1, 3),
    Sketcher.Constraint("Perpendicular", 3, 5),
    Sketcher.Constraint("Perpendicular", 5, 7),
    Sketcher.Constraint("Horizontal", 2, 2, 5, 2),
    Sketcher.Constraint("Horizontal", 1, 2, 6, 2),
    Sketcher.Constraint("Vertical", 4, 2, 7, 2),
    Sketcher.Constraint("Equal", 4, 2),
    Sketcher.Constraint("DistanceX", 0, 1, 0, 2, Q("33.3 mm")),
    Sketcher.Constraint("DistanceX", 0, 2, 1, 2, Q("4.5 mm")),
    Sketcher.Constraint("DistanceX", -1, 1, 0, 2, Q("256.65 mm")),
])
pad9 = doc.addObject("PartDesign::Pad", "Pad008")
body6.addObject(pad9)
pad9.Profile = sketch12
pad9.Length = 28
body7 = doc.addObject("PartDesign::Body", "Body006")

sketch13 = doc.addObject("Sketcher::SketchObject", "Sketch012")
body7.addObject(sketch13)
sketch13.AttachmentSupport = (doc.getObject("XY_Plane006"), [""])
sketch13.MapMode = "FlatFace"
sketch13.addGeometry([
    Part.LineSegment(App.Vector(283, -21, 0), App.Vector(317, -21, 0)),
    Part.LineSegment(App.Vector(317, -21, 0), App.Vector(321, -17, 0)),
    Part.LineSegment(App.Vector(321, -17, 0), App.Vector(321, 17, 0)),
    Part.LineSegment(App.Vector(321, 17, 0), App.Vector(317, 21, 0)),
    Part.LineSegment(App.Vector(317, 21, 0), App.Vector(283, 21, 0)),
    Part.LineSegment(App.Vector(283, 21, 0), App.Vector(279, 17, 0)),
    Part.LineSegment(App.Vector(279, 17, 0), App.Vector(279, -17, 0)),
    Part.LineSegment(App.Vector(279, -17, 0), App.Vector(283, -21, 0)),
], False)
sketch13.addConstraint([
    Sketcher.Constraint("Coincident", 0, 2, 1, 1),
    Sketcher.Constraint("Coincident", 1, 2, 2, 1),
    Sketcher.Constraint("Coincident", 2, 2, 3, 1),
    Sketcher.Constraint("Coincident", 3, 2, 4, 1),
    Sketcher.Constraint("Coincident", 4, 2, 5, 1),
    Sketcher.Constraint("Coincident", 5, 2, 6, 1),
    Sketcher.Constraint("Coincident", 6, 2, 7, 1),
    Sketcher.Constraint("Coincident", 7, 2, 0, 1),
    Sketcher.Constraint("Horizontal", 0),
    Sketcher.Constraint("Vertical", 2),
    Sketcher.Constraint("Horizontal", 4),
    Sketcher.Constraint("Vertical", 6),
    Sketcher.Constraint("Symmetric", 0, 2, 3, 2, -1),
    Sketcher.Constraint("Perpendicular", 1, 3),
    Sketcher.Constraint("Perpendicular", 3, 5),
    Sketcher.Constraint("Perpendicular", 5, 7),
    Sketcher.Constraint("Horizontal", 2, 2, 5, 2),
    Sketcher.Constraint("Horizontal", 1, 2, 6, 2),
    Sketcher.Constraint("Vertical", 4, 2, 7, 2),
    Sketcher.Constraint("Equal", 4, 2),
    Sketcher.Constraint("DistanceX", 0, 1, 0, 2, Q("33.3 mm")),
    Sketcher.Constraint("DistanceX", 0, 2, 1, 2, Q("4.5 mm")),
    Sketcher.Constraint("DistanceX", -1, 1, 0, 2, Q("316.65 mm")),
])
pad10 = doc.addObject("PartDesign::Pad", "Pad009")
body7.addObject(pad10)
pad10.Profile = sketch13
pad10.Length = 44

doc.recompute()
